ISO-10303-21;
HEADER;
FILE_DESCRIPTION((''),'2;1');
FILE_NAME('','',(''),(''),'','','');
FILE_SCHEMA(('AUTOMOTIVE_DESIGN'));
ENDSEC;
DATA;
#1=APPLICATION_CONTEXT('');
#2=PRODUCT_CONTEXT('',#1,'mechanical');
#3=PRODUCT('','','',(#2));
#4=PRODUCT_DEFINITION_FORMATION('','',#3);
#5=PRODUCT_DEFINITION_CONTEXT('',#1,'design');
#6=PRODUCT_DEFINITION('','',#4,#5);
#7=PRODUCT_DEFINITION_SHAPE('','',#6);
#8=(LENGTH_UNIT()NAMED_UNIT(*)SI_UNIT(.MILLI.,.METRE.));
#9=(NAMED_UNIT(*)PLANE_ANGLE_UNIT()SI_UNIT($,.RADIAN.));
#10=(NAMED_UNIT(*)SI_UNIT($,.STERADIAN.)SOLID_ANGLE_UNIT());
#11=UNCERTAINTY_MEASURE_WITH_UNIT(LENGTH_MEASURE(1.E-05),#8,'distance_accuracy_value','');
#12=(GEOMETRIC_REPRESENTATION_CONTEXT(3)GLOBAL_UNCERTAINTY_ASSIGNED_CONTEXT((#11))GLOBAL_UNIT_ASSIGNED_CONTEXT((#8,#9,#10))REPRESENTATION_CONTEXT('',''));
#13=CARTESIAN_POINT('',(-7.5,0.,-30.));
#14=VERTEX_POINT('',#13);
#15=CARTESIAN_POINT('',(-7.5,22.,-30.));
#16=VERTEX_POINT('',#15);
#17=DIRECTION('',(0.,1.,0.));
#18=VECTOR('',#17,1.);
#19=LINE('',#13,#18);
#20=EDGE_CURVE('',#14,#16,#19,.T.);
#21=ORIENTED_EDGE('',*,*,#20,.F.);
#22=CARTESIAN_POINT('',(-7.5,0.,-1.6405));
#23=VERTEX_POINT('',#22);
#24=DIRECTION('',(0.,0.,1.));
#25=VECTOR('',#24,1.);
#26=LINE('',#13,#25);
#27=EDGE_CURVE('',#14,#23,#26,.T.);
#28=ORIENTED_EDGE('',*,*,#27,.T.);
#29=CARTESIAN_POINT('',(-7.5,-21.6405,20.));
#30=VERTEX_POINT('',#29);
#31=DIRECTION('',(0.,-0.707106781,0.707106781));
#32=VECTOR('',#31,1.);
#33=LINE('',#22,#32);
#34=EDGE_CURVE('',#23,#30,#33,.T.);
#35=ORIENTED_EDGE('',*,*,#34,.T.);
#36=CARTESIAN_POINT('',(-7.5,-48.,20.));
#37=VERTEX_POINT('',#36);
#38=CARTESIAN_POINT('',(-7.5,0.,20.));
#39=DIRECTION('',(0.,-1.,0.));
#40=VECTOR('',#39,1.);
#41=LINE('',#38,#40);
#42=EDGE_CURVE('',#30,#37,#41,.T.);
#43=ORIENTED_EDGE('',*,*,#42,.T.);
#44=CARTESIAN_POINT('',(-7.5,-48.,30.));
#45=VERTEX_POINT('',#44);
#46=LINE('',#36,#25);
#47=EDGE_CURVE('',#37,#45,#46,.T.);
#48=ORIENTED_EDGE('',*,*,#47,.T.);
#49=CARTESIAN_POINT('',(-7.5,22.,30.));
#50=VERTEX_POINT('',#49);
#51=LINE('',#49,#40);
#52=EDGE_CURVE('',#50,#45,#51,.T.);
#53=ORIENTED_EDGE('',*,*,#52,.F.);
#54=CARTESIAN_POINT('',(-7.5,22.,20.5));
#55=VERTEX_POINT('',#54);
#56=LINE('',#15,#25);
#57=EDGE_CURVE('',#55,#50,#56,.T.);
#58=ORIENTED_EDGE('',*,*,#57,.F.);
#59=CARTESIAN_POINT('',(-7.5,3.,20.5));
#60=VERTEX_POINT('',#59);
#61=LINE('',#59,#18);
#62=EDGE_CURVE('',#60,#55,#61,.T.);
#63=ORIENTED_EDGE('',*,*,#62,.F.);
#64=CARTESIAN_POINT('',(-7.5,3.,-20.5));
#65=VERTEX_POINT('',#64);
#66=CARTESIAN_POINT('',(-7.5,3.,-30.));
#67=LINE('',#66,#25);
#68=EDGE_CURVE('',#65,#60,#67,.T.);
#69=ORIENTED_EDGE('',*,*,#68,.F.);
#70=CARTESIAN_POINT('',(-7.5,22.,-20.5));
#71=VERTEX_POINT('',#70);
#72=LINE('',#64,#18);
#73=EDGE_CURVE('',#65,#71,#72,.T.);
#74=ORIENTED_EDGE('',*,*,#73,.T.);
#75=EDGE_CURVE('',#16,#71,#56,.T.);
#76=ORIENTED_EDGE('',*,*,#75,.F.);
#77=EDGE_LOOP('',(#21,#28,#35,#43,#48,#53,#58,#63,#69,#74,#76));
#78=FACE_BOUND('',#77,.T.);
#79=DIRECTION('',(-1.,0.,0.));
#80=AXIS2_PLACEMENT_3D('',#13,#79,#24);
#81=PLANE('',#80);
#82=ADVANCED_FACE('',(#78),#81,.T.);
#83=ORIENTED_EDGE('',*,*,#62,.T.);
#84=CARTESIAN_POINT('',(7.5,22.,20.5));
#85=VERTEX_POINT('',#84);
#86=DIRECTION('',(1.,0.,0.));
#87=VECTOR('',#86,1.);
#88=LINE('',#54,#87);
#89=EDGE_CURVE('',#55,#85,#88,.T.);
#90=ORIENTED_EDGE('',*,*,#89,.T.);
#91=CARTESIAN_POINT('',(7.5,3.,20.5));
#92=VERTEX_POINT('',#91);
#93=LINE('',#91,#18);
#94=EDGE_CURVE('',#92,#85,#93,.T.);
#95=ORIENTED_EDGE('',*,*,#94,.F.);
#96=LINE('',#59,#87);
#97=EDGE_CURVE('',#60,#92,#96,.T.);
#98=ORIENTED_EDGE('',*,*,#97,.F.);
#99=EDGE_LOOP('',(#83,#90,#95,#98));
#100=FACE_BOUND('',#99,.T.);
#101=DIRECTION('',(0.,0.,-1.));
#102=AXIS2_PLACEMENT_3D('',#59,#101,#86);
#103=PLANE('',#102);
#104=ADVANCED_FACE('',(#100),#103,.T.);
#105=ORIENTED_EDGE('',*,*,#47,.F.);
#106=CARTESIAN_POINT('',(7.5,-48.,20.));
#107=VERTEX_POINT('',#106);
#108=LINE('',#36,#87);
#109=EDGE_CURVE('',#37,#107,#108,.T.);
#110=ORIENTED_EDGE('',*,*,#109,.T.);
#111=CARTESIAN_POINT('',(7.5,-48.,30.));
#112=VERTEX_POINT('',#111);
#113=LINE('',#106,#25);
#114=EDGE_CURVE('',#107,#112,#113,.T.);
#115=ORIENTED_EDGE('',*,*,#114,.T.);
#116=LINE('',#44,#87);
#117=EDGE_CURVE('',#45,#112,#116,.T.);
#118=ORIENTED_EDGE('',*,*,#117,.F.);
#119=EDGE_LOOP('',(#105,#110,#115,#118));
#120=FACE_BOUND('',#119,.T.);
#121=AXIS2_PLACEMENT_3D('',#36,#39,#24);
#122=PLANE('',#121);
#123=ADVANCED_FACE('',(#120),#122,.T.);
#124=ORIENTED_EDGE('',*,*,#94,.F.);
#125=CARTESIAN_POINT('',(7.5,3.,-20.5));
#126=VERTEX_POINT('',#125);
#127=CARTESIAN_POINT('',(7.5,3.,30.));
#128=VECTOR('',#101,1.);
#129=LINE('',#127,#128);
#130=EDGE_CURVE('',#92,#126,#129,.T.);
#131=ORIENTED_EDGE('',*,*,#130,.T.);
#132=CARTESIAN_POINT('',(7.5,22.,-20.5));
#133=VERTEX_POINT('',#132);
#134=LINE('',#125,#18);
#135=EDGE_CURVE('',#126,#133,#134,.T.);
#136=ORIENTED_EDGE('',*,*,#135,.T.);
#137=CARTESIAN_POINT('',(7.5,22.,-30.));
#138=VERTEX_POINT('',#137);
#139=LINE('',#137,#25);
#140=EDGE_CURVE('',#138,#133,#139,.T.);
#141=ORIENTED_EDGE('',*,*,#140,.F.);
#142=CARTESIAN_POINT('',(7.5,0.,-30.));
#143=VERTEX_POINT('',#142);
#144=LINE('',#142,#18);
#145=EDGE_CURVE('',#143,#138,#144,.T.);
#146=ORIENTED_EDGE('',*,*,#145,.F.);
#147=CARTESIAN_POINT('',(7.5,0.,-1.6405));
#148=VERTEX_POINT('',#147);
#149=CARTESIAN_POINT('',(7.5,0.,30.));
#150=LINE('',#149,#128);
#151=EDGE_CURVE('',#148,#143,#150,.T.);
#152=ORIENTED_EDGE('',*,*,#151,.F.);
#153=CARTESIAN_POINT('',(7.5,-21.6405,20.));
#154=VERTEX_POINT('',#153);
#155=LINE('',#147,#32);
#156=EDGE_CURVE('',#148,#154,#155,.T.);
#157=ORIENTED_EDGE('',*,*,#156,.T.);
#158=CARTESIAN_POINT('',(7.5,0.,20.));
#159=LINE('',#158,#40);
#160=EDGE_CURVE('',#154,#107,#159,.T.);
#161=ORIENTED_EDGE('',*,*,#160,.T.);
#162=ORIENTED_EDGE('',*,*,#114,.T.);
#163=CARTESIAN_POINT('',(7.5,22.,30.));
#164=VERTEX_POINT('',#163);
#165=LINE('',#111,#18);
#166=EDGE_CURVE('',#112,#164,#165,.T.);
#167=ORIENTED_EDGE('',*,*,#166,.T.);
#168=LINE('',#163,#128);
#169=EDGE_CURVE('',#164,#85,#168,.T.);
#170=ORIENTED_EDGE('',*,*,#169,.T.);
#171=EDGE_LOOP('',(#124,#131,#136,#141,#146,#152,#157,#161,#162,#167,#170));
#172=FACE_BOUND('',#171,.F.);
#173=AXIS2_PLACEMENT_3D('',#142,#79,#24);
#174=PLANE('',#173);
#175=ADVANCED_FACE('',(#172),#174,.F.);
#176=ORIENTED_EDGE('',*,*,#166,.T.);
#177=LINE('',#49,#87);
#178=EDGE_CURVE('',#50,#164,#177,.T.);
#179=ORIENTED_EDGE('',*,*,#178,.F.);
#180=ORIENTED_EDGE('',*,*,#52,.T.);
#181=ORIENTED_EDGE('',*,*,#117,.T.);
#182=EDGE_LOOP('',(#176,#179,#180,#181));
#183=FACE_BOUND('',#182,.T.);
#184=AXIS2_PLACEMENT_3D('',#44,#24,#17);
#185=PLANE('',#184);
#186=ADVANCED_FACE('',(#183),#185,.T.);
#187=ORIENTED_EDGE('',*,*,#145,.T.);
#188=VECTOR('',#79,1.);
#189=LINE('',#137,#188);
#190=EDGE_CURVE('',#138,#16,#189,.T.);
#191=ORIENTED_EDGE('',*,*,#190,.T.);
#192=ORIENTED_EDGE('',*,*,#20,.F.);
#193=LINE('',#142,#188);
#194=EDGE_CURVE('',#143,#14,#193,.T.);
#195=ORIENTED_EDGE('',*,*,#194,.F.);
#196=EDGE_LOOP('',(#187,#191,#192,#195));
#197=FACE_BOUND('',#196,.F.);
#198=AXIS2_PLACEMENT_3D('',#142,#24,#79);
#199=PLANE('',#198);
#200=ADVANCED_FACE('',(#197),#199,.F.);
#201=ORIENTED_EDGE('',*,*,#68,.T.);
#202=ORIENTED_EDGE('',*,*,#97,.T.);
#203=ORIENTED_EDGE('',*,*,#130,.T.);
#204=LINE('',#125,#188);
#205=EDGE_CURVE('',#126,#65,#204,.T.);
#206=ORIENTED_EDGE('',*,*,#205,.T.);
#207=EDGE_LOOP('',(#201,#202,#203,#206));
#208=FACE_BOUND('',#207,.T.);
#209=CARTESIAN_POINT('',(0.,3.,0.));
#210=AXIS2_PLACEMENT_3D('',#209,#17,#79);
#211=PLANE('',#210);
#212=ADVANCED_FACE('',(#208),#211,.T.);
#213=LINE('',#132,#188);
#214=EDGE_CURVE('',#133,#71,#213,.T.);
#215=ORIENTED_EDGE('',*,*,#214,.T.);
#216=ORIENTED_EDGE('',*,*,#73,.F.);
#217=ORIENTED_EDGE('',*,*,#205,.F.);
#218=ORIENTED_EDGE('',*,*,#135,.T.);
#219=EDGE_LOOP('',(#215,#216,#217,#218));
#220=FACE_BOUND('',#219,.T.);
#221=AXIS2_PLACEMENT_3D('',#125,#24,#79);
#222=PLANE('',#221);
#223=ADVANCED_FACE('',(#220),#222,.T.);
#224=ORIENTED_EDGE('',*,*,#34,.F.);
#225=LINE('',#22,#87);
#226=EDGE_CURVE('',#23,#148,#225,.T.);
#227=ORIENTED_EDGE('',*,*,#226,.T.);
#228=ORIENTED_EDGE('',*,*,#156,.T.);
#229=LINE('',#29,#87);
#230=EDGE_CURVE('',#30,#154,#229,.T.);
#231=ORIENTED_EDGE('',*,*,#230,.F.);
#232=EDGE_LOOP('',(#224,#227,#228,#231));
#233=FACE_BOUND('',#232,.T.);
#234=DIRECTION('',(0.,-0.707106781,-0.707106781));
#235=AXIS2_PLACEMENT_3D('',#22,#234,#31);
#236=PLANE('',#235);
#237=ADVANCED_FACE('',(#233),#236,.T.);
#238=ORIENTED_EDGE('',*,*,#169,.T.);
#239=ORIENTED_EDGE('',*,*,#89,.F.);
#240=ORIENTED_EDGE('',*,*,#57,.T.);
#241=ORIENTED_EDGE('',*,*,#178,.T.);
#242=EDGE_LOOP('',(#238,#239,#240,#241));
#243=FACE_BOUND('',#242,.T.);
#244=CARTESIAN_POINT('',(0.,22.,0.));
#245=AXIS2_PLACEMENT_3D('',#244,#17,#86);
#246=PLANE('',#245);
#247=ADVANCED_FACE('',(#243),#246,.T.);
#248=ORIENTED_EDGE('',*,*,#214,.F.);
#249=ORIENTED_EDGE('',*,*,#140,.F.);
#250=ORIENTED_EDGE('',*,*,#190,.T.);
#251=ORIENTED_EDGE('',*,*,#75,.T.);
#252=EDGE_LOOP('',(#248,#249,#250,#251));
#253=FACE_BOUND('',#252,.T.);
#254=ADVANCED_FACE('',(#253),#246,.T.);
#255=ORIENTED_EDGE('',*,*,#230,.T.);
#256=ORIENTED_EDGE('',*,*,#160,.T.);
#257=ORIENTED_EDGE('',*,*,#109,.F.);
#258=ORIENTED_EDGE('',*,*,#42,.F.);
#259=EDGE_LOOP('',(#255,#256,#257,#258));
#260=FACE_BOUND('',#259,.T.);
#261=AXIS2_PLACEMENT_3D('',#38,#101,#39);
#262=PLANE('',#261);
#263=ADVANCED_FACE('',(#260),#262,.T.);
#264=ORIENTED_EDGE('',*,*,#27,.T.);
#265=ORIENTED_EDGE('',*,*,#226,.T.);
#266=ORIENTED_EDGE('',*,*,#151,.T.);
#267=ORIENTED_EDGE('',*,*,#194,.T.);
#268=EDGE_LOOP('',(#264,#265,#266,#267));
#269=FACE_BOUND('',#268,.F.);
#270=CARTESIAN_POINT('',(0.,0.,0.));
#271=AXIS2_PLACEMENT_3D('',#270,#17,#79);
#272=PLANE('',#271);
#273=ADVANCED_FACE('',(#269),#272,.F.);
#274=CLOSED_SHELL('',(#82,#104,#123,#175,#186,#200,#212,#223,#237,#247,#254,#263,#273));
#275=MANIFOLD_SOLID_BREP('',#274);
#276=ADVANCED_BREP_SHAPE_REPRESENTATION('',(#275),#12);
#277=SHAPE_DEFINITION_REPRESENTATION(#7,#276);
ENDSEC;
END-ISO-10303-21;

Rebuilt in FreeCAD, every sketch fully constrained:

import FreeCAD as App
import Part
import Sketcher
from FreeCAD import Vector

doc = App.newDocument("Part")
body = doc.addObject("PartDesign::Body", "Body")

# Sketch on XZ plane
sketch1 = body.newObject("Sketcher::SketchObject", "Sketch")
sketch1.AttachmentSupport = (doc.getObject("XZ_Plane"), [""])
sketch1.MapMode = "FlatFace"
sketch1.addGeometry(Part.LineSegment(Vector(7.5, 30, 0), Vector(7.5, -30, 0)), False)
sketch1.addGeometry(Part.LineSegment(Vector(7.5, -30, 0), Vector(-7.5, -30, 0)), False)
sketch1.addGeometry(Part.LineSegment(Vector(-7.5, -30, 0), Vector(-7.5, 30, 0)), False)
sketch1.addGeometry(Part.LineSegment(Vector(-7.5, 30, 0), Vector(7.5, 30, 0)), False)
sketch1.addConstraint(Sketcher.Constraint("Coincident", 0, 2, 1, 1))
sketch1.addConstraint(Sketcher.Constraint("Coincident", 1, 2, 2, 1))
sketch1.addConstraint(Sketcher.Constraint("Coincident", 2, 2, 3, 1))
sketch1.addConstraint(Sketcher.Constraint("Coincident", 3, 2, 0, 1))
sketch1.addConstraint(Sketcher.Constraint("Vertical", 0))
sketch1.addConstraint(Sketcher.Constraint("Horizontal", 1))
sketch1.addConstraint(Sketcher.Constraint("Vertical", 2))
sketch1.addConstraint(Sketcher.Constraint("Horizontal", 3))
sketch1.addConstraint(Sketcher.Constraint("Symmetric", 0, 2, 2, 2, -1, 1))
sketch1.addConstraint(Sketcher.Constraint("DistanceX", 1, 2, 1, 1, 15.0))
sketch1.addConstraint(Sketcher.Constraint("DistanceY", 0, 2, 0, 1, 60.0))
pad1 = body.newObject("PartDesign::Pad", "Pad")
pad1.Profile = sketch1
pad1.Length = 3
pad1.Reversed = True

# Sketch on XZ plane
sketch2 = body.newObject("Sketcher::SketchObject", "Sketch001")
sketch2.AttachmentSupport = (doc.getObject("XZ_Plane"), [""])
sketch2.MapMode = "FlatFace"
sketch2.AttachmentOffset = App.Placement(Vector(0, 0, -3), App.Rotation())
sketch2.addGeometry(Part.LineSegment(Vector(7.5, -30, 0), Vector(-7.5, -30, 0)), False)
sketch2.addGeometry(Part.LineSegment(Vector(-7.5, -30, 0), Vector(-7.5, -20.5, 0)), False)
sketch2.addGeometry(Part.LineSegment(Vector(-7.5, -20.5, 0), Vector(7.5, -20.5, 0)), False)
sketch2.addGeometry(Part.LineSegment(Vector(7.5, -20.5, 0), Vector(7.5, -30, 0)), False)
sketch2.addGeometry(Part.LineSegment(Vector(7.5, 20.5, 0), Vector(-7.5, 20.5, 0)), False)
sketch2.addGeometry(Part.LineSegment(Vector(-7.5, 20.5, 0), Vector(-7.5, 30, 0)), False)
sketch2.addGeometry(Part.LineSegment(Vector(-7.5, 30, 0), Vector(7.5, 30, 0)), False)
sketch2.addGeometry(Part.LineSegment(Vector(7.5, 30, 0), Vector(7.5, 20.5, 0)), False)
sketch2.addConstraint(Sketcher.Constraint("Coincident", 0, 2, 1, 1))
sketch2.addConstraint(Sketcher.Constraint("Coincident", 1, 2, 2, 1))
sketch2.addConstraint(Sketcher.Constraint("Coincident", 2, 2, 3, 1))
sketch2.addConstraint(Sketcher.Constraint("Coincident", 3, 2, 0, 1))
sketch2.addConstraint(Sketcher.Constraint("Coincident", 4, 2, 5, 1))
sketch2.addConstraint(Sketcher.Constraint("Coincident", 5, 2, 6, 1))
sketch2.addConstraint(Sketcher.Constraint("Coincident", 6, 2, 7, 1))
sketch2.addConstraint(Sketcher.Constraint("Coincident", 7, 2, 4, 1))
sketch2.addConstraint(Sketcher.Constraint("Horizontal", 0))
sketch2.addConstraint(Sketcher.Constraint("Vertical", 1))
sketch2.addConstraint(Sketcher.Constraint("Horizontal", 2))
sketch2.addConstraint(Sketcher.Constraint("Vertical", 3))
sketch2.addConstraint(Sketcher.Constraint("Horizontal", 4))
sketch2.addConstraint(Sketcher.Constraint("Vertical", 5))
sketch2.addConstraint(Sketcher.Constraint("Horizontal", 6))
sketch2.addConstraint(Sketcher.Constraint("Vertical", 7))
sketch2.addConstraint(Sketcher.Constraint("Symmetric", 2, 2, 4, 2, -1, 1))
sketch2.addConstraint(Sketcher.Constraint("Symmetric", 0, 2, 6, 2, -1, 1))
sketch2.addConstraint(Sketcher.Constraint("Vertical", 1, 2, 4, 2))
sketch2.addConstraint(Sketcher.Constraint("DistanceY", 1, 2, 4, 2, 41.0))
sketch2.addConstraint(Sketcher.Constraint("DistanceX", 0, 2, 0, 1, 15.0))
sketch2.addConstraint(Sketcher.Constraint("DistanceY", 1, 1, 1, 2, 9.5))
pad2 = body.newObject("PartDesign::Pad", "Pad001")
pad2.Profile = sketch2
pad2.Length = 19
pad2.Reversed = True

# Sketch on YZ plane
sketch3 = body.newObject("Sketcher::SketchObject", "Sketch002")
sketch3.AttachmentSupport = (doc.getObject("YZ_Plane"), [""])
sketch3.MapMode = "FlatFace"
sketch3.AttachmentOffset = App.Placement(Vector(0, 0, -7.5), App.Rotation())
sketch3.addGeometry(Part.LineSegment(Vector(-48, 30, 0), Vector(0, 30, 0)), False)
sketch3.addGeometry(Part.LineSegment(Vector(0, 30, 0), Vector(0, 20, 0)), False)
sketch3.addGeometry(Part.LineSegment(Vector(0, 20, 0), Vector(-48, 20, 0)), False)
sketch3.addGeometry(Part.LineSegment(Vector(-48, 20, 0), Vector(-48, 30, 0)), False)
sketch3.addConstraint(Sketcher.Constraint("Coincident", 0, 2, 1, 1))
sketch3.addConstraint(Sketcher.Constraint("Coincident", 1, 2, 2, 1))
sketch3.addConstraint(Sketcher.Constraint("Coincident", 2, 2, 3, 1))
sketch3.addConstraint(Sketcher.Constraint("Coincident", 3, 2, 0, 1))
sketch3.addConstraint(Sketcher.Constraint("Horizontal", 0))
sketch3.addConstraint(Sketcher.Constraint("Vertical", 1))
sketch3.addConstraint(Sketcher.Constraint("Horizontal", 2))
sketch3.addConstraint(Sketcher.Constraint("Vertical", 3))
sketch3.addConstraint(Sketcher.Constraint("PointOnObject", 0, 2, -2))
sketch3.addConstraint(Sketcher.Constraint("DistanceX", 0, 1, 0, 2, 48.0))
sketch3.addConstraint(Sketcher.Constraint("DistanceY", 1, 2, 1, 1, 10.0))
sketch3.addConstraint(Sketcher.Constraint("DistanceY", -1, 1, 0, 2, 30.0))
pad3 = body.newObject("PartDesign::Pad", "Pad002")
pad3.Profile = sketch3
pad3.Length = 15

# Sketch on YZ plane
sketch4 = body.newObject("Sketcher::SketchObject", "Sketch003")
sketch4.AttachmentSupport = (doc.getObject("YZ_Plane"), [""])
sketch4.MapMode = "FlatFace"
sketch4.AttachmentOffset = App.Placement(Vector(0, 0, -7.5), App.Rotation())
sketch4.addGeometry(Part.LineSegment(Vector(0, 20, 0), Vector(0, -1.6405, 0)), False)
sketch4.addGeometry(Part.LineSegment(Vector(0, -1.6405, 0), Vector(-21.6405, 20, 0)), False)
sketch4.addGeometry(Part.LineSegment(Vector(-21.6405, 20, 0), Vector(0, 20, 0)), False)
sketch4.addConstraint(Sketcher.Constraint("Coincident", 0, 2, 1, 1))
sketch4.addConstraint(Sketcher.Constraint("Coincident", 1, 2, 2, 1))
sketch4.addConstraint(Sketcher.Constraint("Coincident", 2, 2, 0, 1))
sketch4.addConstraint(Sketcher.Constraint("Vertical", 0))
sketch4.addConstraint(Sketcher.Constraint("Horizontal", 2))
sketch4.addConstraint(Sketcher.Constraint("PointOnObject", 0, 2, -2))
sketch4.addConstraint(Sketcher.Constraint("Equal", 2, 0))
sketch4.addConstraint(Sketcher.Constraint("DistanceY", -1, 1, 1, 2, 20.0))
sketch4.addConstraint(Sketcher.Constraint("DistanceX", 2, 1, 2, 2, 21.6405))
pad4 = body.newObject("PartDesign::Pad", "Pad003")
pad4.Profile = sketch4
pad4.Length = 15

doc.recompute()
